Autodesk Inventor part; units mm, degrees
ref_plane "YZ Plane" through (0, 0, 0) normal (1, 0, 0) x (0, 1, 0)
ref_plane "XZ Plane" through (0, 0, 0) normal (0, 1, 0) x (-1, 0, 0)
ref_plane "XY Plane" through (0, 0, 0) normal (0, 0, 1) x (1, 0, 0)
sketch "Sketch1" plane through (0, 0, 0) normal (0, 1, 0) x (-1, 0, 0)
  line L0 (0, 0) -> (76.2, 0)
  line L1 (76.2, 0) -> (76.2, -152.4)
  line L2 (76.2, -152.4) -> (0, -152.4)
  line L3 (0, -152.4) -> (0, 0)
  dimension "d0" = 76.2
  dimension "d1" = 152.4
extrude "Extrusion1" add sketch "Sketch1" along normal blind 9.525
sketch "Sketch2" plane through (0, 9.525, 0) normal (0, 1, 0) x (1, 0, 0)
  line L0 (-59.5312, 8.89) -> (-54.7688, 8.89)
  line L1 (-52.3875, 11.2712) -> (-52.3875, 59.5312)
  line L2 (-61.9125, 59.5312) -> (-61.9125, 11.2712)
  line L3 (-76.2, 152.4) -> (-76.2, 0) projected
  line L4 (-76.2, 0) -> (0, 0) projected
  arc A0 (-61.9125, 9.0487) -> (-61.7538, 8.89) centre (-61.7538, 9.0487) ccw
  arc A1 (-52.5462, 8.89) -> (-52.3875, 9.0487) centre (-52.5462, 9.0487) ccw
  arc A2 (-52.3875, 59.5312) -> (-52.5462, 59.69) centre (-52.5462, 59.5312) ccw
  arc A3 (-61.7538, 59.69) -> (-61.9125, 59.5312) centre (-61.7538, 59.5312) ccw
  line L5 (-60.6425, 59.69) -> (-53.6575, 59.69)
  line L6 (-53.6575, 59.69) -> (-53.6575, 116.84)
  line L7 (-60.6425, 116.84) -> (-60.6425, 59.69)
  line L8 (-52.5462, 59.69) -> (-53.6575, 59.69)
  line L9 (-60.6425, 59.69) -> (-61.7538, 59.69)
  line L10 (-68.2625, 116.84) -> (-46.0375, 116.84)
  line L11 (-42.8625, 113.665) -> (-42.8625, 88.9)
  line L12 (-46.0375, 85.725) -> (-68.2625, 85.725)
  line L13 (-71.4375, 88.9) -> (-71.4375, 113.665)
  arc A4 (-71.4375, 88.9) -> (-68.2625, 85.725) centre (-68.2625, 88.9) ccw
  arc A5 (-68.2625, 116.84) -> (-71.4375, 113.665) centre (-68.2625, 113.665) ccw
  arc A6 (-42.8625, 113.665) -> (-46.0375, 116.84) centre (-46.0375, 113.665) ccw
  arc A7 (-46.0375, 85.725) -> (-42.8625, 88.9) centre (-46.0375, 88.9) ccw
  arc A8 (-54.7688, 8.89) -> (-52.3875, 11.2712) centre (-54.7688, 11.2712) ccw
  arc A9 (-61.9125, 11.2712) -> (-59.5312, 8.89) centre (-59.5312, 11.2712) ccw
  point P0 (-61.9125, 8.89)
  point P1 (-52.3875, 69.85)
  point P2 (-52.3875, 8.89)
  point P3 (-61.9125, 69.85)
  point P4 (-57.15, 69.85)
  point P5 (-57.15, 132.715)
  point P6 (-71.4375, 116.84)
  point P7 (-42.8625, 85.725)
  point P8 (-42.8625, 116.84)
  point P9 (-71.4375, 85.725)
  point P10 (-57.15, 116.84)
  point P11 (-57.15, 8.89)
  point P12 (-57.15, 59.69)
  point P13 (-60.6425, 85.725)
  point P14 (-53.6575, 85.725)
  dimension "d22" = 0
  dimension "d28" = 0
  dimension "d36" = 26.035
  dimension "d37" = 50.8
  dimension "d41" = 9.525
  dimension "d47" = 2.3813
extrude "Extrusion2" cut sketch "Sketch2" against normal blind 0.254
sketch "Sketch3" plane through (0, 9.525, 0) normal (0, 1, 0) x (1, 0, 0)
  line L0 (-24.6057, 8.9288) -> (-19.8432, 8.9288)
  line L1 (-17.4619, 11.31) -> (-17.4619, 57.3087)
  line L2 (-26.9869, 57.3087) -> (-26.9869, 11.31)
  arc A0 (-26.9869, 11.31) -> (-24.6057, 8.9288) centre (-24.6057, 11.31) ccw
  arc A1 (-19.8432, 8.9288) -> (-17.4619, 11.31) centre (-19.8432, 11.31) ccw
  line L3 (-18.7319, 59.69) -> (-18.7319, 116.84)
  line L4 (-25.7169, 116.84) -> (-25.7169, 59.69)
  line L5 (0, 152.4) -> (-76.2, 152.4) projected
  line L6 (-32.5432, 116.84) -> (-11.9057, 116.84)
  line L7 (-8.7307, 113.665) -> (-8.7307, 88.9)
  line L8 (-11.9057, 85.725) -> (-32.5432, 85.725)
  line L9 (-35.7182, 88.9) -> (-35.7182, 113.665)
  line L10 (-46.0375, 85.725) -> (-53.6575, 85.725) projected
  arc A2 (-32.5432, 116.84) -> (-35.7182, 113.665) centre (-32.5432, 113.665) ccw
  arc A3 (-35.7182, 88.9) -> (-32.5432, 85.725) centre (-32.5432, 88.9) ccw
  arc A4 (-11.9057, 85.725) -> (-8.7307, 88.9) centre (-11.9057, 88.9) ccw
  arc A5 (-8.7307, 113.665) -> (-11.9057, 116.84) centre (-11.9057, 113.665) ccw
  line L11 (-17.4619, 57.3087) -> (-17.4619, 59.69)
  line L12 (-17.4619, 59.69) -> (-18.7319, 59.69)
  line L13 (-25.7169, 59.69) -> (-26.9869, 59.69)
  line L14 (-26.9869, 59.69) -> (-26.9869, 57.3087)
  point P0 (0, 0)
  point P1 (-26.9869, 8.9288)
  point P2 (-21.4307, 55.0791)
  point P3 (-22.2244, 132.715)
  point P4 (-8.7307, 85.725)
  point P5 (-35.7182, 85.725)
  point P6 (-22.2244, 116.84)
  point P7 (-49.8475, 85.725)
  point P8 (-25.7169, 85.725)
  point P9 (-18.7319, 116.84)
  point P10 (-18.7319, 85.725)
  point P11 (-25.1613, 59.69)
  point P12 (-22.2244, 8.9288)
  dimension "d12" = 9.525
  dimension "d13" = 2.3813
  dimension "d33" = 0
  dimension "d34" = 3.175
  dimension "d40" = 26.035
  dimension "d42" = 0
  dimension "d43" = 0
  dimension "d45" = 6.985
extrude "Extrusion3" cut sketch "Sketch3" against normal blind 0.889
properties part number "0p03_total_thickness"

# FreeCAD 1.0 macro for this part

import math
import FreeCAD as App
import Part
import Sketcher
Q = App.Units.Quantity

doc = App.newDocument("Part")
body = doc.addObject("PartDesign::Body", "Body")

# Sketch on XZ plane
sketch1 = body.newObject("Sketcher::SketchObject", "Sketch")
sketch1.AttachmentSupport = (doc.getObject("XZ_Plane"), [""])
sketch1.MapMode = "FlatFace"
sketch1.addGeometry(Part.LineSegment(App.Vector(-76, 0, 0), App.Vector(0, 0, 0)), False)
sketch1.addGeometry(Part.LineSegment(App.Vector(0, 0, 0), App.Vector(0, -152, 0)), False)
sketch1.addGeometry(Part.LineSegment(App.Vector(0, -152, 0), App.Vector(-76, -152, 0)), False)
sketch1.addGeometry(Part.LineSegment(App.Vector(-76, -152, 0), App.Vector(-76, 0, 0)), False)
sketch1.addConstraint(Sketcher.Constraint("Coincident", 0, 2, 1, 1))
sketch1.addConstraint(Sketcher.Constraint("Coincident", 1, 2, 2, 1))
sketch1.addConstraint(Sketcher.Constraint("Coincident", 2, 2, 3, 1))
sketch1.addConstraint(Sketcher.Constraint("Coincident", 3, 2, 0, 1))
sketch1.addConstraint(Sketcher.Constraint("Horizontal", 0))
sketch1.addConstraint(Sketcher.Constraint("Vertical", 1))
sketch1.addConstraint(Sketcher.Constraint("Horizontal", 2))
sketch1.addConstraint(Sketcher.Constraint("Vertical", 3))
sketch1.addConstraint(Sketcher.Constraint("Coincident", 0, 2, -1, 1))
sketch1.addConstraint(Sketcher.Constraint("DistanceX", 0, 1, 0, 2, Q("3 in")))
sketch1.addConstraint(Sketcher.Constraint("DistanceY", 1, 2, 1, 1, Q("6 in")))
pad1 = body.newObject("PartDesign::Pad", "Pad")
pad1.Profile = sketch1
pad1.Length = Q("0.375 in")
pad1.Reversed = True

# Sketch on XZ plane
sketch2 = body.newObject("Sketcher::SketchObject", "Sketch001")
sketch2.AttachmentSupport = (doc.getObject("XZ_Plane"), [""])
sketch2.MapMode = "FlatFace"
sketch2.AttachmentOffset = App.Placement(App.Vector(0, 0, -0.375 * 25.4), App.Rotation())
sketch2.addGeometry(Part.ArcOfCircle(Part.Circle(App.Vector(-59.53, -11.27, 0), App.Vector(0, 0, 1), 2.38), math.radians(90), math.radians(180)), False)
sketch2.addGeometry(Part.LineSegment(App.Vector(-59.53, -8.89, 0), App.Vector(-54.77, -8.89, 0)), False)
sketch2.addGeometry(Part.ArcOfCircle(Part.Circle(App.Vector(-54.77, -11.27, 0), App.Vector(0, 0, 1), 2.38), math.radians(0), math.radians(90)), False)
sketch2.addGeometry(Part.LineSegment(App.Vector(-52.39, -11.27, 0), App.Vector(-52.39, -59.53, 0)), False)
sketch2.addGeometry(Part.ArcOfCircle(Part.Circle(App.Vector(-52.55, -59.53, 0), App.Vector(0, 0, 1), 0.16), math.radians(-90), math.radians(0)), False)
sketch2.addGeometry(Part.LineSegment(App.Vector(-52.55, -59.69, 0), App.Vector(-53.66, -59.69, 0)), False)
sketch2.addGeometry(Part.LineSegment(App.Vector(-53.66, -59.69, 0), App.Vector(-53.66, -85.72, 0)), False)
sketch2.addGeometry(Part.LineSegment(App.Vector(-53.66, -85.72, 0), App.Vector(-46.04, -85.72, 0)), False)
sketch2.addGeometry(Part.ArcOfCircle(Part.Circle(App.Vector(-46.04, -88.9, 0), App.Vector(0, 0, 1), 3.18), math.radians(0), math.radians(90)), False)
sketch2.addGeometry(Part.LineSegment(App.Vector(-42.86, -88.9, 0), App.Vector(-42.86, -113.67, 0)), False)
sketch2.addGeometry(Part.ArcOfCircle(Part.Circle(App.Vector(-46.04, -113.67, 0), App.Vector(0, 0, 1), 3.18), math.radians(-90), math.radians(0)), False)
sketch2.addGeometry(Part.LineSegment(App.Vector(-46.04, -116.84, 0), App.Vector(-68.26, -116.84, 0)), False)
sketch2.addGeometry(Part.ArcOfCircle(Part.Circle(App.Vector(-68.26, -113.67, 0), App.Vector(0, 0, 1), 3.17), math.radians(180), math.radians(270)), False)
sketch2.addGeometry(Part.LineSegment(App.Vector(-71.44, -113.67, 0), App.Vector(-71.44, -88.9, 0)), False)
sketch2.addGeometry(Part.ArcOfCircle(Part.Circle(App.Vector(-68.26, -88.9, 0), App.Vector(0, 0, 1), 3.17), math.radians(90), math.radians(180)), False)
sketch2.addGeometry(Part.LineSegment(App.Vector(-68.26, -85.72, 0), App.Vector(-60.64, -85.72, 0)), False)
sketch2.addGeometry(Part.LineSegment(App.Vector(-60.64, -85.72, 0), App.Vector(-60.64, -59.69, 0)), False)
sketch2.addGeometry(Part.LineSegment(App.Vector(-60.64, -59.69, 0), App.Vector(-61.75, -59.69, 0)), False)
sketch2.addGeometry(Part.ArcOfCircle(Part.Circle(App.Vector(-61.75, -59.53, 0), App.Vector(0, 0, 1), 0.16), math.radians(180), math.radians(270)), False)
sketch2.addGeometry(Part.LineSegment(App.Vector(-61.91, -59.53, 0), App.Vector(-61.91, -11.27, 0)), False)
sketch2.addConstraint(Sketcher.Constraint("Tangent", 0, 1, 1, 1))
sketch2.addConstraint(Sketcher.Constraint("Tangent", 1, 2, 2, 2))
sketch2.addConstraint(Sketcher.Constraint("Tangent", 2, 1, 3, 1))
sketch2.addConstraint(Sketcher.Constraint("Tangent", 3, 2, 4, 2))
sketch2.addConstraint(Sketcher.Constraint("Tangent", 4, 1, 5, 1))
sketch2.addConstraint(Sketcher.Constraint("Coincident", 5, 2, 6, 1))
sketch2.addConstraint(Sketcher.Constraint("Coincident", 6, 2, 7, 1))
sketch2.addConstraint(Sketcher.Constraint("Tangent", 7, 2, 8, 2))
sketch2.addConstraint(Sketcher.Constraint("Tangent", 8, 1, 9, 1))
sketch2.addConstraint(Sketcher.Constraint("Tangent", 9, 2, 10, 2))
sketch2.addConstraint(Sketcher.Constraint("Tangent", 10, 1, 11, 1))
sketch2.addConstraint(Sketcher.Constraint("Tangent", 11, 2, 12, 2))
sketch2.addConstraint(Sketcher.Constraint("Tangent", 12, 1, 13, 1))
sketch2.addConstraint(Sketcher.Constraint("Tangent", 13, 2, 14, 2))
sketch2.addConstraint(Sketcher.Constraint("Tangent", 14, 1, 15, 1))
sketch2.addConstraint(Sketcher.Constraint("Coincident", 15, 2, 16, 1))
sketch2.addConstraint(Sketcher.Constraint("Coincident", 16, 2, 17, 1))
sketch2.addConstraint(Sketcher.Constraint("Tangent", 17, 2, 18, 2))
sketch2.addConstraint(Sketcher.Constraint("Tangent", 18, 1, 19, 1))
sketch2.addConstraint(Sketcher.Constraint("Tangent", 19, 2, 0, 2))
sketch2.addConstraint(Sketcher.Constraint("Horizontal", 1))
sketch2.addConstraint(Sketcher.Constraint("Vertical", 3))
sketch2.addConstraint(Sketcher.Constraint("Horizontal", 5))
sketch2.addConstraint(Sketcher.Constraint("Vertical", 6))
sketch2.addConstraint(Sketcher.Constraint("Horizontal", 7))
sketch2.addConstraint(Sketcher.Constraint("Vertical", 9))
sketch2.addConstraint(Sketcher.Constraint("Horizontal", 11))
sketch2.addConstraint(Sketcher.Constraint("Vertical", 13))
sketch2.addConstraint(Sketcher.Constraint("Horizontal", 15))
sketch2.addConstraint(Sketcher.Constraint("Vertical", 16))
sketch2.addConstraint(Sketcher.Constraint("Horizontal", 17))
sketch2.addConstraint(Sketcher.Constraint("Vertical", 19))
sketch2.addConstraint(Sketcher.Constraint("Equal", 0, 2))
sketch2.addConstraint(Sketcher.Constraint("Equal", 8, 10))
sketch2.addConstraint(Sketcher.Constraint("Equal", 10, 12))
sketch2.addConstraint(Sketcher.Constraint("Equal", 12, 14))
sketch2.addConstraint(Sketcher.Constraint("Equal", 4, 18))
sketch2.addConstraint(Sketcher.Constraint("Horizontal", 8, 3, 14, 3))
sketch2.addConstraint(Sketcher.Constraint("Horizontal", 4, 3, 18, 3))
sketch2.addConstraint(Sketcher.Constraint("Equal", 7, 15))
sketch2.addConstraint(Sketcher.Constraint("Equal", 5, 17))
sketch2.addConstraint(Sketcher.Constraint("Radius", 0, Q("0.093752 in")))
sketch2.addConstraint(Sketcher.Constraint("DistanceY", 6, 2, 6, 1, Q("1.025 in")))
sketch2.addConstraint(Sketcher.Constraint("DistanceX", 7, 1, 7, 2, Q("0.3 in")))
sketch2.addConstraint(Sketcher.Constraint("DistanceY", 3, 2, 3, 1, Q("1.9 in")))
sketch2.addConstraint(Sketcher.Constraint("Radius", 8, Q("0.125 in")))
sketch2.addConstraint(Sketcher.Constraint("DistanceX", 14, 3, 8, 1, Q("1 in")))
sketch2.addConstraint(Sketcher.Constraint("DistanceX", 19, 2, 2, 1, Q("0.375 in")))
sketch2.addConstraint(Sketcher.Constraint("DistanceY", 8, 3, -1, 1, Q("3.5 in")))
sketch2.addConstraint(Sketcher.Constraint("DistanceY", 10, 1, -1, 1, Q("4.6 in")))
sketch2.addConstraint(Sketcher.Constraint("DistanceY", 0, 1, -1, 1, Q("0.35 in")))
sketch2.addConstraint(Sketcher.Constraint("DistanceX", 0, 3, -1, 1, Q("2.343748 in")))
pocket1 = body.newObject("PartDesign::Pocket", "Pocket")
pocket1.Profile = sketch2
pocket1.Length = Q("0.01 in")
pocket1.Reversed = True

# Sketch on XZ plane
sketch3 = body.newObject("Sketcher::SketchObject", "Sketch002")
sketch3.AttachmentSupport = (doc.getObject("XZ_Plane"), [""])
sketch3.MapMode = "FlatFace"
sketch3.AttachmentOffset = App.Placement(App.Vector(0, 0, -0.375 * 25.4), App.Rotation())
sketch3.addGeometry(Part.ArcOfCircle(Part.Circle(App.Vector(-24.6, -11.3, 0), App.Vector(0, 0, 1), 2.4), math.radians(90), math.radians(180)), False)
sketch3.addGeometry(Part.LineSegment(App.Vector(-24.6, -8.9, 0), App.Vector(-19.8, -8.9, 0)), False)
sketch3.addGeometry(Part.ArcOfCircle(Part.Circle(App.Vector(-19.8, -11.3, 0), App.Vector(0, 0, 1), 2.4), math.radians(0), math.radians(90)), False)
sketch3.addGeometry(Part.LineSegment(App.Vector(-17.5, -11.3, 0), App.Vector(-17.5, -59.7, 0)), False)
sketch3.addGeometry(Part.LineSegment(App.Vector(-17.5, -59.7, 0), App.Vector(-18.7, -59.7, 0)), False)
sketch3.addGeometry(Part.LineSegment(App.Vector(-18.7, -59.7, 0), App.Vector(-18.7, -85.7, 0)), False)
sketch3.addGeometry(Part.LineSegment(App.Vector(-18.7, -85.7, 0), App.Vector(-11.9, -85.7, 0)), False)
sketch3.addGeometry(Part.ArcOfCircle(Part.Circle(App.Vector(-11.9, -88.9, 0), App.Vector(0, 0, 1), 3.2), math.radians(0), math.radians(90)), False)
sketch3.addGeometry(Part.LineSegment(App.Vector(-8.7, -88.9, 0), App.Vector(-8.7, -113.7, 0)), False)
sketch3.addGeometry(Part.ArcOfCircle(Part.Circle(App.Vector(-11.9, -113.7, 0), App.Vector(0, 0, 1), 3.2), math.radians(-90), math.radians(0)), False)
sketch3.addGeometry(Part.LineSegment(App.Vector(-11.9, -116.8, 0), App.Vector(-32.5, -116.8, 0)), False)
sketch3.addGeometry(Part.ArcOfCircle(Part.Circle(App.Vector(-32.5, -113.7, 0), App.Vector(0, 0, 1), 3.2), math.radians(180), math.radians(270)), False)
sketch3.addGeometry(Part.LineSegment(App.Vector(-35.7, -113.7, 0), App.Vector(-35.7, -88.9, 0)), False)
sketch3.addGeometry(Part.ArcOfCircle(Part.Circle(App.Vector(-32.5, -88.9, 0), App.Vector(0, 0, 1), 3.2), math.radians(90), math.radians(180)), False)
sketch3.addGeometry(Part.LineSegment(App.Vector(-32.5, -85.7, 0), App.Vector(-25.7, -85.7, 0)), False)
sketch3.addGeometry(Part.LineSegment(App.Vector(-25.7, -85.7, 0), App.Vector(-25.7, -59.7, 0)), False)
sketch3.addGeometry(Part.LineSegment(App.Vector(-25.7, -59.7, 0), App.Vector(-27, -59.7, 0)), False)
sketch3.addGeometry(Part.LineSegment(App.Vector(-27, -59.7, 0), App.Vector(-27, -11.3, 0)), False)
sketch3.addConstraint(Sketcher.Constraint("Tangent", 0, 1, 1, 1))
sketch3.addConstraint(Sketcher.Constraint("Tangent", 1, 2, 2, 2))
sketch3.addConstraint(Sketcher.Constraint("Tangent", 2, 1, 3, 1))
sketch3.addConstraint(Sketcher.Constraint("Coincident", 3, 2, 4, 1))
sketch3.addConstraint(Sketcher.Constraint("Coincident", 4, 2, 5, 1))
sketch3.addConstraint(Sketcher.Constraint("Coincident", 5, 2, 6, 1))
sketch3.addConstraint(Sketcher.Constraint("Tangent", 6, 2, 7, 2))
sketch3.addConstraint(Sketcher.Constraint("Tangent", 7, 1, 8, 1))
sketch3.addConstraint(Sketcher.Constraint("Tangent", 8, 2, 9, 2))
sketch3.addConstraint(Sketcher.Constraint("Tangent", 9, 1, 10, 1))
sketch3.addConstraint(Sketcher.Constraint("Tangent", 10, 2, 11, 2))
sketch3.addConstraint(Sketcher.Constraint("Tangent", 11, 1, 12, 1))
sketch3.addConstraint(Sketcher.Constraint("Tangent", 12, 2, 13, 2))
sketch3.addConstraint(Sketcher.Constraint("Tangent", 13, 1, 14, 1))
sketch3.addConstraint(Sketcher.Constraint("Coincident", 14, 2, 15, 1))
sketch3.addConstraint(Sketcher.Constraint("Coincident", 15, 2, 16, 1))
sketch3.addConstraint(Sketcher.Constraint("Coincident", 16, 2, 17, 1))
sketch3.addConstraint(Sketcher.Constraint("Tangent", 17, 2, 0, 2))
sketch3.addConstraint(Sketcher.Constraint("Horizontal", 1))
sketch3.addConstraint(Sketcher.Constraint("Vertical", 3))
sketch3.addConstraint(Sketcher.Constraint("Horizontal", 4))
sketch3.addConstraint(Sketcher.Constraint("Vertical", 5))
sketch3.addConstraint(Sketcher.Constraint("Horizontal", 6))
sketch3.addConstraint(Sketcher.Constraint("Vertical", 8))
sketch3.addConstraint(Sketcher.Constraint("Horizontal", 10))
sketch3.addConstraint(Sketcher.Constraint("Vertical", 12))
sketch3.addConstraint(Sketcher.Constraint("Horizontal", 14))
sketch3.addConstraint(Sketcher.Constraint("Vertical", 15))
sketch3.addConstraint(Sketcher.Constraint("Horizontal", 16))
sketch3.addConstraint(Sketcher.Constraint("Vertical", 17))
sketch3.addConstraint(Sketcher.Constraint("Equal", 0, 2))
sketch3.addConstraint(Sketcher.Constraint("Equal", 7, 9))
sketch3.addConstraint(Sketcher.Constraint("Equal", 9, 11))
sketch3.addConstraint(Sketcher.Constraint("Equal", 11, 13))
sketch3.addConstraint(Sketcher.Constraint("Horizontal", 7, 3, 13, 3))
sketch3.addConstraint(Sketcher.Constraint("Horizontal", 4, 2, 15, 2))
sketch3.addConstraint(Sketcher.Constraint("Equal", 6, 14))
sketch3.addConstraint(Sketcher.Constraint("Equal", 4, 16))
sketch3.addConstraint(Sketcher.Constraint("Radius", 0, Q("0.093748 in")))
sketch3.addConstraint(Sketcher.Constraint("Radius", 7, Q("0.125 in")))
sketch3.addConstraint(Sketcher.Constraint("DistanceY", 5, 2, 5, 1, Q("1.025 in")))
sketch3.addConstraint(Sketcher.Constraint("DistanceX", 14, 2, 5, 2, Q("0.275 in")))
sketch3.addConstraint(Sketcher.Constraint("DistanceX", 16, 2, 3, 2, Q("0.375 in")))
sketch3.addConstraint(Sketcher.Constraint("DistanceY", 7, 3, -1, 1, Q("3.5 in")))
sketch3.addConstraint(Sketcher.Constraint("DistanceY", 9, 1, -1, 1, Q("4.6 in")))
sketch3.addConstraint(Sketcher.Constraint("DistanceX", 0, 3, 7, 3, Q("0.5 in")))
sketch3.addConstraint(Sketcher.Constraint("DistanceY", 3, 2, 3, 1, Q("48.38 mm")))
sketch3.addConstraint(Sketcher.Constraint("DistanceX", 0, 3, -1, 1, Q("24.6057 mm")))
pocket2 = body.newObject("PartDesign::Pocket", "Pocket001")
pocket2.Profile = sketch3
pocket2.Length = Q("0.035 in")
pocket2.Reversed = True

doc.recompute()
